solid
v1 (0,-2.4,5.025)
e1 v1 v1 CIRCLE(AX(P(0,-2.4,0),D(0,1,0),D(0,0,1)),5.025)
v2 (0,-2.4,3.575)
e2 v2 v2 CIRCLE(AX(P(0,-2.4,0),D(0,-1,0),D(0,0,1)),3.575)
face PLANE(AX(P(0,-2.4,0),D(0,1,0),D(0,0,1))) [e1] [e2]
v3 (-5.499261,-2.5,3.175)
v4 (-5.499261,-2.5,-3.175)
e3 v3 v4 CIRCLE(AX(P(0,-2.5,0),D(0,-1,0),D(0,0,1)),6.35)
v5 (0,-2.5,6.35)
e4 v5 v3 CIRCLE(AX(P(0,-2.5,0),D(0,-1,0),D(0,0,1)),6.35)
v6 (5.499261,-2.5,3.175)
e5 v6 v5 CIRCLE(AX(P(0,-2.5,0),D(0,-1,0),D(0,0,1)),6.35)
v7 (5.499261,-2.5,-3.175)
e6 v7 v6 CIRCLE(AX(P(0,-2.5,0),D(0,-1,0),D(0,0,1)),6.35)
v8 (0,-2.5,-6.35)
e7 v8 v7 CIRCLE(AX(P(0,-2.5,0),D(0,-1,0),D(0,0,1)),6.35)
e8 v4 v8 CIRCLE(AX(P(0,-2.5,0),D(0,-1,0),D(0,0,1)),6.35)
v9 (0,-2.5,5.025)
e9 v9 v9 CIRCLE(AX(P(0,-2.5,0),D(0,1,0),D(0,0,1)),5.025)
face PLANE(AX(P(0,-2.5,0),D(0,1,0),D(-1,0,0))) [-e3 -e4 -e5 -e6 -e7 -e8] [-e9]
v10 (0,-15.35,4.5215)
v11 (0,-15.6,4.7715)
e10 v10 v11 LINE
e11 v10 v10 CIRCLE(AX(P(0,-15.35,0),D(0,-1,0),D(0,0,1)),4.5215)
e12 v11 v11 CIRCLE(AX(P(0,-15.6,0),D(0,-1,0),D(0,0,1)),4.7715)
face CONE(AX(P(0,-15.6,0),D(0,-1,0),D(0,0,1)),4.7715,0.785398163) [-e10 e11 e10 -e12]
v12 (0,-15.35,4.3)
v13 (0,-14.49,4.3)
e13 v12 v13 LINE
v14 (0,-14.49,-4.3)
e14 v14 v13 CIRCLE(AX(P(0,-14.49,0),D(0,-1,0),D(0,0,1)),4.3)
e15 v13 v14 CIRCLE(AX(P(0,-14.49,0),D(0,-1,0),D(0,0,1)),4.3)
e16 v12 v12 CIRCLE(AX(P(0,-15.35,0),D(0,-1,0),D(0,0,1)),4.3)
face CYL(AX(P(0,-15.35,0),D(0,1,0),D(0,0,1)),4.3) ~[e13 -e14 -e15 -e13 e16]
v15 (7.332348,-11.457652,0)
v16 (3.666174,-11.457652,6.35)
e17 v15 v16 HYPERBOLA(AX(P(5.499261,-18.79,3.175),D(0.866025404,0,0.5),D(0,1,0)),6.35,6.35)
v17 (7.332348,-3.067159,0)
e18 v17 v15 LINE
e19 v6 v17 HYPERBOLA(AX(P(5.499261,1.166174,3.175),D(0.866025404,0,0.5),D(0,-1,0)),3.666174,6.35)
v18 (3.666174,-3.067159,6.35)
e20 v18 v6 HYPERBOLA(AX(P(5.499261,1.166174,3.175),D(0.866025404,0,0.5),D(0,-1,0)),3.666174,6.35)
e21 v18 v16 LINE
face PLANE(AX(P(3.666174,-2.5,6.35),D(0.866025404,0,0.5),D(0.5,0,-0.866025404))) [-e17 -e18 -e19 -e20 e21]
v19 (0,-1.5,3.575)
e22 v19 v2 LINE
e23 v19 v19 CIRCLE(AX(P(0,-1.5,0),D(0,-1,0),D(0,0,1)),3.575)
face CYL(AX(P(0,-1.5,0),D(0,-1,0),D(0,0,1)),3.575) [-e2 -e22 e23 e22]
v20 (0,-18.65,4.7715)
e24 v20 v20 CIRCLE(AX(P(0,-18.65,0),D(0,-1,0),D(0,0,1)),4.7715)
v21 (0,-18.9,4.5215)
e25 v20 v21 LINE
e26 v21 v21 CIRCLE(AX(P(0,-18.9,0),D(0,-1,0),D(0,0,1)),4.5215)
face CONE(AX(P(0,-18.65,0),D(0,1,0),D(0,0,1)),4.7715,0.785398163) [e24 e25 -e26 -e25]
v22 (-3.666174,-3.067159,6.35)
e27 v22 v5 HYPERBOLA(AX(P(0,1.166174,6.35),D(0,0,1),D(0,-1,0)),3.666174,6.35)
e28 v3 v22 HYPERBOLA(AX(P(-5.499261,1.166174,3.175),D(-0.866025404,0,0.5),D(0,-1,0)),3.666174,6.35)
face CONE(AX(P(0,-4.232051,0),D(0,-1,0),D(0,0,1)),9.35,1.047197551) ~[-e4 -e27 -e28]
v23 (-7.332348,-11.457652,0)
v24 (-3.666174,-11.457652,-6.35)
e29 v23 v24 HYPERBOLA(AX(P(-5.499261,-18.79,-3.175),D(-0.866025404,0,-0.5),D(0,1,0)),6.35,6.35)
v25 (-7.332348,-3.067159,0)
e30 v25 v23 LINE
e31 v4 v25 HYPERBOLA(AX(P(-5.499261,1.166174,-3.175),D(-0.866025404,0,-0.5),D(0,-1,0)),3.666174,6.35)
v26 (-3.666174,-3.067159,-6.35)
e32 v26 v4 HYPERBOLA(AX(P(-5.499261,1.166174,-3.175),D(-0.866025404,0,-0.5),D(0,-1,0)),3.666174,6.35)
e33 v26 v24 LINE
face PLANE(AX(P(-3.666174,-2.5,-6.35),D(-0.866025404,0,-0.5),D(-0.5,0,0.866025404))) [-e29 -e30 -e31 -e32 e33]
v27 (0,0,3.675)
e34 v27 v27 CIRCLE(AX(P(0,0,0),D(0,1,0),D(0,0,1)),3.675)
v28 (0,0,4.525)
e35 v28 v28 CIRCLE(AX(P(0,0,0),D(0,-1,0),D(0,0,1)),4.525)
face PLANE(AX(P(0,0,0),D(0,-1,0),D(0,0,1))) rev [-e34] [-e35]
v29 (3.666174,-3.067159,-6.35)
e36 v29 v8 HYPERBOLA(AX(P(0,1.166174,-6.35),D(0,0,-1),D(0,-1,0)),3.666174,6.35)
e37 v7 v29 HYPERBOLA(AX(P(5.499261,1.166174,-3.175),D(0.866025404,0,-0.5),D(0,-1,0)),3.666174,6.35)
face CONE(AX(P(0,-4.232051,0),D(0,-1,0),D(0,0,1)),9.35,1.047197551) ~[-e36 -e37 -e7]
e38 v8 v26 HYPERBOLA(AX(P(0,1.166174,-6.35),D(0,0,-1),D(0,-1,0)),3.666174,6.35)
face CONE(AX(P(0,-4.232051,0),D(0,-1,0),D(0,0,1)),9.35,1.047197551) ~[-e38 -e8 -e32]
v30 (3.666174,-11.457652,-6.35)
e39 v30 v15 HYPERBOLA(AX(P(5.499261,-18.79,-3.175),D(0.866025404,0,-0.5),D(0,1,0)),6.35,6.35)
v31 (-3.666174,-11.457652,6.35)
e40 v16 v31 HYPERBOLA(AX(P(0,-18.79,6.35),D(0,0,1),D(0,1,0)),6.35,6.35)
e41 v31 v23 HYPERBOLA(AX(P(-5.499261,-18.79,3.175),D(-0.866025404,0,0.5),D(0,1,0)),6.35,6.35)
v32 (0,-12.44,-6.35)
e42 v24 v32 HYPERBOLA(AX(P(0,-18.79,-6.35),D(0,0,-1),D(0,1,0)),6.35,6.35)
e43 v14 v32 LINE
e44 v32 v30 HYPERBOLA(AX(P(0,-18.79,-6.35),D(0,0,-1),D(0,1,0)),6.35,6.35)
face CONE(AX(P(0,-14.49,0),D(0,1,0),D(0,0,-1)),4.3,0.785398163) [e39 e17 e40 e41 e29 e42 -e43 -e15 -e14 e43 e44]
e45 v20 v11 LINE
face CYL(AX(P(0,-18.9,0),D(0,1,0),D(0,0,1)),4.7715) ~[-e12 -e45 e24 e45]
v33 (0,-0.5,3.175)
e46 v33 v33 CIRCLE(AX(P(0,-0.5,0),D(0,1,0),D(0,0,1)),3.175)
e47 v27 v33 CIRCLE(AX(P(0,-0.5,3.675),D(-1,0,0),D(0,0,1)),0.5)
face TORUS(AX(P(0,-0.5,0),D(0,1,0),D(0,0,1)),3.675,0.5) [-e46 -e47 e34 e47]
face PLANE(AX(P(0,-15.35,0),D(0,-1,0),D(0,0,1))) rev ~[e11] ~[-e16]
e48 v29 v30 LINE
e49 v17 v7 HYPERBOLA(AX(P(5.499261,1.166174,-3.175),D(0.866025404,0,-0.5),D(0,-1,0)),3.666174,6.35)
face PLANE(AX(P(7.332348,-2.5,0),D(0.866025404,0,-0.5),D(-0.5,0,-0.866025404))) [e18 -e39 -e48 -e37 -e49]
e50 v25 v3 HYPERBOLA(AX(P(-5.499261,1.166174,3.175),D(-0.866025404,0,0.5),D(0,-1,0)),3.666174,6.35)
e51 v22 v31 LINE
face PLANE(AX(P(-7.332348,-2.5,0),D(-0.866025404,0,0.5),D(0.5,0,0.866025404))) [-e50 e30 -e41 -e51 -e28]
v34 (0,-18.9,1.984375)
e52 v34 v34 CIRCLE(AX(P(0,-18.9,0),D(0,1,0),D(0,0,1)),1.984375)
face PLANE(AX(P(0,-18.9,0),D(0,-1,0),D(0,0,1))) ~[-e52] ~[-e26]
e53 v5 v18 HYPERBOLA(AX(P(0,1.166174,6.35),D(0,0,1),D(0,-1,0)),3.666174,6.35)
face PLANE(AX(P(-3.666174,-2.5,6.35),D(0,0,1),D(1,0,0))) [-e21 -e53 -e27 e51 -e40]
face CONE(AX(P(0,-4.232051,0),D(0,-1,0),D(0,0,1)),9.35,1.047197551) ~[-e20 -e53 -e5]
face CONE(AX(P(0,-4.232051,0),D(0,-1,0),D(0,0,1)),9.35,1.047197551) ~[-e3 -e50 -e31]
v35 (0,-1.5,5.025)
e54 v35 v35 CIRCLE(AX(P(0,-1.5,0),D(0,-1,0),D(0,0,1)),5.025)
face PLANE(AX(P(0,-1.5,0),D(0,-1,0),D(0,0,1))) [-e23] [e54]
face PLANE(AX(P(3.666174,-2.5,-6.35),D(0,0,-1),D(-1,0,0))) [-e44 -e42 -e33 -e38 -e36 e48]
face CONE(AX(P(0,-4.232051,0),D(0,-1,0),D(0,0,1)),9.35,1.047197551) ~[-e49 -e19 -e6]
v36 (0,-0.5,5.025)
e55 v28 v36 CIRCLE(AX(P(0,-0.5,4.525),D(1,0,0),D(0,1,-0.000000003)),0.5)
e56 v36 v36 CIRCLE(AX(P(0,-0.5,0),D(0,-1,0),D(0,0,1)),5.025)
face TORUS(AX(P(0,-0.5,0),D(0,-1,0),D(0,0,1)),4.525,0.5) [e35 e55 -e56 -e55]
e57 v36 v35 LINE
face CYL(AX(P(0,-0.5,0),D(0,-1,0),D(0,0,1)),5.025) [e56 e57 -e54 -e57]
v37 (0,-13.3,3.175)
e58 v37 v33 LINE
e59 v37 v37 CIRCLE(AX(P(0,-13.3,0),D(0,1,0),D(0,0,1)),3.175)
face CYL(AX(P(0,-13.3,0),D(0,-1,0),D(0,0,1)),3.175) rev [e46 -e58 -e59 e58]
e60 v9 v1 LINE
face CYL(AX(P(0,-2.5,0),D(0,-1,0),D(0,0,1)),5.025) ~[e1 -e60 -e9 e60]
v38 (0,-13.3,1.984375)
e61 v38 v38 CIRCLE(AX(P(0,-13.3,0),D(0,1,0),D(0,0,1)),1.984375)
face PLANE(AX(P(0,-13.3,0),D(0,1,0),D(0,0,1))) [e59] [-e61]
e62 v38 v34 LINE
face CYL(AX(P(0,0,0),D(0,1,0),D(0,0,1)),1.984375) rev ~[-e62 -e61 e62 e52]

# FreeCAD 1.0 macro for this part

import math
import FreeCAD as App
import Part
import Sketcher
from FreeCAD import Vector
Q = App.Units.Quantity


def edges_at(feature, points):
    """Names of the edges that pass closest to the given points."""
    edges = feature.Shape.Edges
    near = lambda p: min(range(len(edges)), key=lambda i: edges[i].distToShape(Part.Vertex(*p))[0])
    return sorted({f"Edge{near(p) + 1}" for p in points})


def add_polygon(sketch, points):
    """Adds a closed chain of lines whose ends are joined by coincident constraints."""
    first, n = sketch.GeometryCount, len(points)
    for a, b in zip(points, points[1:] + points[:1]):
        sketch.addGeometry(Part.LineSegment(App.Vector(*a, 0), App.Vector(*b, 0)), False)
    for i in range(n):
        sketch.addConstraint(Sketcher.Constraint("Coincident", first + i, 2, first + (i + 1) % n, 1))

doc = App.newDocument("Part")
body = doc.addObject("PartDesign::Body", "Body")

# Sketch on XY plane
sketch1 = body.newObject("Sketcher::SketchObject", "Sketch")
sketch1.AttachmentSupport = (doc.getObject("XY_Plane"), [""])
sketch1.MapMode = "FlatFace"
sketch1.addGeometry(Part.LineSegment(Vector(0, 0, 0), Vector(-4.525, 0, 0)), False)
sketch1.addGeometry(Part.ArcOfCircle(Part.Circle(Vector(-4.525, -0.5, 0), Vector(0, 0, 1), 0.5), math.radians(90), math.radians(180)), False)
sketch1.addGeometry(Part.LineSegment(Vector(-5.025, -0.5, 0), Vector(-5.025, -1.5, 0)), False)
sketch1.addGeometry(Part.LineSegment(Vector(-5.025, -1.5, 0), Vector(-3.575, -1.5, 0)), False)
sketch1.addGeometry(Part.LineSegment(Vector(-3.575, -1.5, 0), Vector(-3.575, -2.4, 0)), False)
sketch1.addGeometry(Part.LineSegment(Vector(-3.575, -2.4, 0), Vector(0, -2.4, 0)), False)
sketch1.addGeometry(Part.LineSegment(Vector(0, -2.4, 0), Vector(0, 0, 0)), False)
sketch1.addConstraint(Sketcher.Constraint("Tangent", 0, 2, 1, 1))
sketch1.addConstraint(Sketcher.Constraint("Tangent", 1, 2, 2, 1))
sketch1.addConstraint(Sketcher.Constraint("Coincident", 2, 2, 3, 1))
sketch1.addConstraint(Sketcher.Constraint("Coincident", 3, 2, 4, 1))
sketch1.addConstraint(Sketcher.Constraint("Coincident", 4, 2, 5, 1))
sketch1.addConstraint(Sketcher.Constraint("Coincident", 5, 2, 6, 1))
sketch1.addConstraint(Sketcher.Constraint("Coincident", 6, 2, 0, 1))
sketch1.addConstraint(Sketcher.Constraint("Horizontal", 0))
sketch1.addConstraint(Sketcher.Constraint("Vertical", 2))
sketch1.addConstraint(Sketcher.Constraint("Horizontal", 3))
sketch1.addConstraint(Sketcher.Constraint("Vertical", 4))
sketch1.addConstraint(Sketcher.Constraint("Horizontal", 5))
sketch1.addConstraint(Sketcher.Constraint("Vertical", 6))
sketch1.addConstraint(Sketcher.Constraint("Coincident", 6, 2, -1, 1))
sketch1.addConstraint(Sketcher.Constraint("Radius", 1, 0.5))
sketch1.addConstraint(Sketcher.Constraint("DistanceY", 2, 2, 2, 1, 1.0))
sketch1.addConstraint(Sketcher.Constraint("DistanceY", 4, 2, 4, 1, 0.9))
sketch1.addConstraint(Sketcher.Constraint("DistanceX", 3, 1, 3, 2, 1.45))
sketch1.addConstraint(Sketcher.Constraint("DistanceX", 0, 2, 0, 1, 4.525))
revolution = body.newObject("PartDesign::Revolution", "Revolution")
revolution.Profile = sketch1
revolution.ReferenceAxis = (sketch1, ["V_Axis"])
revolution.Angle = 360

# Sketch on XZ plane
sketch2 = body.newObject("Sketcher::SketchObject", "Sketch001")
sketch2.AttachmentSupport = (doc.getObject("XZ_Plane"), [""])
sketch2.MapMode = "FlatFace"
sketch2.AttachmentOffset = App.Placement(Vector(0, 0, 2.5), App.Rotation())
sketch2.addGeometry(Part.Circle(Vector(0, 0, 0), Vector(0, 0, 1), 5.025), False)
sketch2.addConstraint(Sketcher.Constraint("Coincident", 0, 3, -1, 1))
sketch2.addConstraint(Sketcher.Constraint("Diameter", 0, 10.05))
pad1 = body.newObject("PartDesign::Pad", "Pad")
pad1.Profile = sketch2
pad1.Length = 0.1
pad1.Reversed = True

# Sketch on XZ plane
sketch3 = body.newObject("Sketcher::SketchObject", "Sketch002")
sketch3.AttachmentSupport = (doc.getObject("XZ_Plane"), [""])
sketch3.MapMode = "FlatFace"
sketch3.AttachmentOffset = App.Placement(Vector(0, 0, 2.5), App.Rotation())
add_polygon(sketch3, [(3.666174, -6.35), (-3.666174, -6.35), (-7.332348, 0), (-3.666174, 6.35), (3.666174, 6.35), (7.332348, 0)])  # lines 0-5
sketch3.addConstraint(Sketcher.Constraint("Horizontal", 0))
sketch3.addConstraint(Sketcher.Constraint("Horizontal", 3))
sketch3.addConstraint(Sketcher.Constraint("Symmetric", 0, 2, 3, 2, -1, 1))
sketch3.addConstraint(Sketcher.Constraint("Symmetric", 1, 2, 4, 2, -1, 1))
sketch3.addConstraint(Sketcher.Constraint("PointOnObject", 1, 2, -1))
sketch3.addConstraint(Sketcher.Constraint("Parallel", 2, 5))
sketch3.addConstraint(Sketcher.Constraint("Vertical", 0, 2, 2, 2))
sketch3.addConstraint(Sketcher.Constraint("Angle", 1, Q("120 deg")))
sketch3.addConstraint(Sketcher.Constraint("DistanceY", 0, 2, 2, 2, 12.7))
sketch3.addConstraint(Sketcher.Constraint("DistanceX", 0, 2, 0, 1, 7.332348))
pad2 = body.newObject("PartDesign::Pad", "Pad001")
pad2.Profile = sketch3
pad2.Length = 11.99

# Sketch on YZ plane
sketch4 = body.newObject("Sketcher::SketchObject", "Sketch003")
sketch4.AttachmentSupport = (doc.getObject("YZ_Plane"), [""])
sketch4.MapMode = "FlatFace"
add_polygon(sketch4, [(-2.5, 6.35), (-2.5, 9.35), (-4.232051, 9.35)])  # lines 0-2
add_polygon(sketch4, [(-12.757949, 9.35), (-14.49, 9.35), (-14.49, 6.35)])  # lines 3-5
sketch4.addConstraint(Sketcher.Constraint("Vertical", 0))
sketch4.addConstraint(Sketcher.Constraint("Horizontal", 1))
sketch4.addConstraint(Sketcher.Constraint("Horizontal", 3))
sketch4.addConstraint(Sketcher.Constraint("Vertical", 4))
sketch4.addConstraint(Sketcher.Constraint("Horizontal", 1, 2, 3, 2))
sketch4.addConstraint(Sketcher.Constraint("Horizontal", 2, 2, 4, 2))
sketch4.addConstraint(Sketcher.Constraint("Equal", 1, 3))
sketch4.addConstraint(Sketcher.Constraint("DistanceY", 0, 1, 0, 2, 3.0))
sketch4.addConstraint(Sketcher.Constraint("Angle", 2, Q("-60 deg")))
sketch4.addConstraint(Sketcher.Constraint("DistanceX", 0, 2, -1, 1, 2.5))
sketch4.addConstraint(Sketcher.Constraint("DistanceY", -1, 1, 0, 2, 9.35))
sketch4.addConstraint(Sketcher.Constraint("DistanceX", 3, 2, -1, 1, 14.49))
groove = body.newObject("PartDesign::Groove", "Groove")
groove.Profile = sketch4
groove.ReferenceAxis = (sketch4, ["H_Axis"])
groove.Angle = 360

# Sketch on XY plane
sketch5 = body.newObject("Sketcher::SketchObject", "Sketch004")
sketch5.AttachmentSupport = (doc.getObject("XY_Plane"), [""])
sketch5.MapMode = "FlatFace"
add_polygon(sketch5, [(-4.3, -15.35), (-4.7715, -15.35), (-4.7715, -18.9), (0, -18.9), (0, -14.49), (-4.3, -14.49)])  # lines 0-5
sketch5.addConstraint(Sketcher.Constraint("Horizontal", 0))
sketch5.addConstraint(Sketcher.Constraint("Vertical", 1))
sketch5.addConstraint(Sketcher.Constraint("Horizontal", 2))
sketch5.addConstraint(Sketcher.Constraint("Vertical", 3))
sketch5.addConstraint(Sketcher.Constraint("Horizontal", 4))
sketch5.addConstraint(Sketcher.Constraint("Vertical", 5))
sketch5.addConstraint(Sketcher.Constraint("PointOnObject", 2, 2, -2))
sketch5.addConstraint(Sketcher.Constraint("DistanceX", 4, 2, 4, 1, 4.3))
sketch5.addConstraint(Sketcher.Constraint("DistanceY", 1, 2, 1, 1, 3.55))
sketch5.addConstraint(Sketcher.Constraint("DistanceY", 3, 1, 3, 2, 4.41))
sketch5.addConstraint(Sketcher.Constraint("DistanceY", 1, 2, -1, 1, 18.9))
sketch5.addConstraint(Sketcher.Constraint("DistanceX", 0, 2, 0, 1, 0.4715))
revolution2 = body.newObject("PartDesign::Revolution", "Revolution001")
revolution2.Profile = sketch5
revolution2.ReferenceAxis = (sketch5, ["V_Axis"])
revolution2.Angle = 360
doc.recompute()

chamfer = body.newObject("PartDesign::Chamfer", "Chamfer")
chamfer.Base = (revolution2, edges_at(revolution2, [(0, -18.9, -4.771), (0, -15.35, -4.771)]))
chamfer.Size = 0.25

# Sketch on XZ plane
sketch6 = body.newObject("Sketcher::SketchObject", "Sketch005")
sketch6.AttachmentSupport = (doc.getObject("XZ_Plane"), [""])
sketch6.MapMode = "FlatFace"
sketch6.AttachmentOffset = App.Placement(Vector(0, 0, 13.3), App.Rotation())
sketch6.addGeometry(Part.Circle(Vector(0, 0, 0), Vector(0, 0, 1), 3.175), False)
sketch6.addConstraint(Sketcher.Constraint("Coincident", 0, 3, -1, 1))
sketch6.addConstraint(Sketcher.Constraint("Diameter", 0, 6.35))
pocket1 = body.newObject("PartDesign::Pocket", "Pocket")
pocket1.Profile = sketch6
pocket1.Length = 13.3
doc.recompute()

fillet = body.newObject("PartDesign::Fillet", "Fillet")
fillet.Base = (pocket1, edges_at(pocket1, [(0, 0, -3.175)]))
fillet.Radius = 0.5

# Sketch on XZ plane
sketch7 = body.newObject("Sketcher::SketchObject", "Sketch006")
sketch7.AttachmentSupport = (doc.getObject("XZ_Plane"), [""])
sketch7.MapMode = "FlatFace"
sketch7.addGeometry(Part.Circle(Vector(0, 0, 0), Vector(0, 0, 1), 1.984375), False)
sketch7.addConstraint(Sketcher.Constraint("Coincident", 0, 3, -1, 1))
sketch7.addConstraint(Sketcher.Constraint("Diameter", 0, 3.96875))
pocket2 = body.newObject("PartDesign::Pocket", "Pocket001")
pocket2.Profile = sketch7
pocket2.Type = "ThroughAll"
pocket2.Reversed = True

# Sketch on XY plane
sketch8 = body.newObject("Sketcher::SketchObject", "Sketch007")
sketch8.AttachmentSupport = (doc.getObject("XY_Plane"), [""])
sketch8.MapMode = "FlatFace"
add_polygon(sketch8, [(-4.3, -14.49), (-7.332348, -11.457652), (-7.332348, -14.49)])  # lines 0-2
sketch8.addConstraint(Sketcher.Constraint("Vertical", 1))
sketch8.addConstraint(Sketcher.Constraint("Horizontal", 2))
sketch8.addConstraint(Sketcher.Constraint("Equal", 2, 1))
sketch8.addConstraint(Sketcher.Constraint("DistanceX", 2, 2, -1, 1, 4.3))
sketch8.addConstraint(Sketcher.Constraint("DistanceY", 1, 2, -1, 1, 14.49))
sketch8.addConstraint(Sketcher.Constraint("DistanceX", 2, 1, 2, 2, 3.032348))
groove2 = body.newObject("PartDesign::Groove", "Groove001")
groove2.Profile = sketch8
groove2.ReferenceAxis = (sketch8, ["V_Axis"])
groove2.Angle = 360

doc.recompute()
